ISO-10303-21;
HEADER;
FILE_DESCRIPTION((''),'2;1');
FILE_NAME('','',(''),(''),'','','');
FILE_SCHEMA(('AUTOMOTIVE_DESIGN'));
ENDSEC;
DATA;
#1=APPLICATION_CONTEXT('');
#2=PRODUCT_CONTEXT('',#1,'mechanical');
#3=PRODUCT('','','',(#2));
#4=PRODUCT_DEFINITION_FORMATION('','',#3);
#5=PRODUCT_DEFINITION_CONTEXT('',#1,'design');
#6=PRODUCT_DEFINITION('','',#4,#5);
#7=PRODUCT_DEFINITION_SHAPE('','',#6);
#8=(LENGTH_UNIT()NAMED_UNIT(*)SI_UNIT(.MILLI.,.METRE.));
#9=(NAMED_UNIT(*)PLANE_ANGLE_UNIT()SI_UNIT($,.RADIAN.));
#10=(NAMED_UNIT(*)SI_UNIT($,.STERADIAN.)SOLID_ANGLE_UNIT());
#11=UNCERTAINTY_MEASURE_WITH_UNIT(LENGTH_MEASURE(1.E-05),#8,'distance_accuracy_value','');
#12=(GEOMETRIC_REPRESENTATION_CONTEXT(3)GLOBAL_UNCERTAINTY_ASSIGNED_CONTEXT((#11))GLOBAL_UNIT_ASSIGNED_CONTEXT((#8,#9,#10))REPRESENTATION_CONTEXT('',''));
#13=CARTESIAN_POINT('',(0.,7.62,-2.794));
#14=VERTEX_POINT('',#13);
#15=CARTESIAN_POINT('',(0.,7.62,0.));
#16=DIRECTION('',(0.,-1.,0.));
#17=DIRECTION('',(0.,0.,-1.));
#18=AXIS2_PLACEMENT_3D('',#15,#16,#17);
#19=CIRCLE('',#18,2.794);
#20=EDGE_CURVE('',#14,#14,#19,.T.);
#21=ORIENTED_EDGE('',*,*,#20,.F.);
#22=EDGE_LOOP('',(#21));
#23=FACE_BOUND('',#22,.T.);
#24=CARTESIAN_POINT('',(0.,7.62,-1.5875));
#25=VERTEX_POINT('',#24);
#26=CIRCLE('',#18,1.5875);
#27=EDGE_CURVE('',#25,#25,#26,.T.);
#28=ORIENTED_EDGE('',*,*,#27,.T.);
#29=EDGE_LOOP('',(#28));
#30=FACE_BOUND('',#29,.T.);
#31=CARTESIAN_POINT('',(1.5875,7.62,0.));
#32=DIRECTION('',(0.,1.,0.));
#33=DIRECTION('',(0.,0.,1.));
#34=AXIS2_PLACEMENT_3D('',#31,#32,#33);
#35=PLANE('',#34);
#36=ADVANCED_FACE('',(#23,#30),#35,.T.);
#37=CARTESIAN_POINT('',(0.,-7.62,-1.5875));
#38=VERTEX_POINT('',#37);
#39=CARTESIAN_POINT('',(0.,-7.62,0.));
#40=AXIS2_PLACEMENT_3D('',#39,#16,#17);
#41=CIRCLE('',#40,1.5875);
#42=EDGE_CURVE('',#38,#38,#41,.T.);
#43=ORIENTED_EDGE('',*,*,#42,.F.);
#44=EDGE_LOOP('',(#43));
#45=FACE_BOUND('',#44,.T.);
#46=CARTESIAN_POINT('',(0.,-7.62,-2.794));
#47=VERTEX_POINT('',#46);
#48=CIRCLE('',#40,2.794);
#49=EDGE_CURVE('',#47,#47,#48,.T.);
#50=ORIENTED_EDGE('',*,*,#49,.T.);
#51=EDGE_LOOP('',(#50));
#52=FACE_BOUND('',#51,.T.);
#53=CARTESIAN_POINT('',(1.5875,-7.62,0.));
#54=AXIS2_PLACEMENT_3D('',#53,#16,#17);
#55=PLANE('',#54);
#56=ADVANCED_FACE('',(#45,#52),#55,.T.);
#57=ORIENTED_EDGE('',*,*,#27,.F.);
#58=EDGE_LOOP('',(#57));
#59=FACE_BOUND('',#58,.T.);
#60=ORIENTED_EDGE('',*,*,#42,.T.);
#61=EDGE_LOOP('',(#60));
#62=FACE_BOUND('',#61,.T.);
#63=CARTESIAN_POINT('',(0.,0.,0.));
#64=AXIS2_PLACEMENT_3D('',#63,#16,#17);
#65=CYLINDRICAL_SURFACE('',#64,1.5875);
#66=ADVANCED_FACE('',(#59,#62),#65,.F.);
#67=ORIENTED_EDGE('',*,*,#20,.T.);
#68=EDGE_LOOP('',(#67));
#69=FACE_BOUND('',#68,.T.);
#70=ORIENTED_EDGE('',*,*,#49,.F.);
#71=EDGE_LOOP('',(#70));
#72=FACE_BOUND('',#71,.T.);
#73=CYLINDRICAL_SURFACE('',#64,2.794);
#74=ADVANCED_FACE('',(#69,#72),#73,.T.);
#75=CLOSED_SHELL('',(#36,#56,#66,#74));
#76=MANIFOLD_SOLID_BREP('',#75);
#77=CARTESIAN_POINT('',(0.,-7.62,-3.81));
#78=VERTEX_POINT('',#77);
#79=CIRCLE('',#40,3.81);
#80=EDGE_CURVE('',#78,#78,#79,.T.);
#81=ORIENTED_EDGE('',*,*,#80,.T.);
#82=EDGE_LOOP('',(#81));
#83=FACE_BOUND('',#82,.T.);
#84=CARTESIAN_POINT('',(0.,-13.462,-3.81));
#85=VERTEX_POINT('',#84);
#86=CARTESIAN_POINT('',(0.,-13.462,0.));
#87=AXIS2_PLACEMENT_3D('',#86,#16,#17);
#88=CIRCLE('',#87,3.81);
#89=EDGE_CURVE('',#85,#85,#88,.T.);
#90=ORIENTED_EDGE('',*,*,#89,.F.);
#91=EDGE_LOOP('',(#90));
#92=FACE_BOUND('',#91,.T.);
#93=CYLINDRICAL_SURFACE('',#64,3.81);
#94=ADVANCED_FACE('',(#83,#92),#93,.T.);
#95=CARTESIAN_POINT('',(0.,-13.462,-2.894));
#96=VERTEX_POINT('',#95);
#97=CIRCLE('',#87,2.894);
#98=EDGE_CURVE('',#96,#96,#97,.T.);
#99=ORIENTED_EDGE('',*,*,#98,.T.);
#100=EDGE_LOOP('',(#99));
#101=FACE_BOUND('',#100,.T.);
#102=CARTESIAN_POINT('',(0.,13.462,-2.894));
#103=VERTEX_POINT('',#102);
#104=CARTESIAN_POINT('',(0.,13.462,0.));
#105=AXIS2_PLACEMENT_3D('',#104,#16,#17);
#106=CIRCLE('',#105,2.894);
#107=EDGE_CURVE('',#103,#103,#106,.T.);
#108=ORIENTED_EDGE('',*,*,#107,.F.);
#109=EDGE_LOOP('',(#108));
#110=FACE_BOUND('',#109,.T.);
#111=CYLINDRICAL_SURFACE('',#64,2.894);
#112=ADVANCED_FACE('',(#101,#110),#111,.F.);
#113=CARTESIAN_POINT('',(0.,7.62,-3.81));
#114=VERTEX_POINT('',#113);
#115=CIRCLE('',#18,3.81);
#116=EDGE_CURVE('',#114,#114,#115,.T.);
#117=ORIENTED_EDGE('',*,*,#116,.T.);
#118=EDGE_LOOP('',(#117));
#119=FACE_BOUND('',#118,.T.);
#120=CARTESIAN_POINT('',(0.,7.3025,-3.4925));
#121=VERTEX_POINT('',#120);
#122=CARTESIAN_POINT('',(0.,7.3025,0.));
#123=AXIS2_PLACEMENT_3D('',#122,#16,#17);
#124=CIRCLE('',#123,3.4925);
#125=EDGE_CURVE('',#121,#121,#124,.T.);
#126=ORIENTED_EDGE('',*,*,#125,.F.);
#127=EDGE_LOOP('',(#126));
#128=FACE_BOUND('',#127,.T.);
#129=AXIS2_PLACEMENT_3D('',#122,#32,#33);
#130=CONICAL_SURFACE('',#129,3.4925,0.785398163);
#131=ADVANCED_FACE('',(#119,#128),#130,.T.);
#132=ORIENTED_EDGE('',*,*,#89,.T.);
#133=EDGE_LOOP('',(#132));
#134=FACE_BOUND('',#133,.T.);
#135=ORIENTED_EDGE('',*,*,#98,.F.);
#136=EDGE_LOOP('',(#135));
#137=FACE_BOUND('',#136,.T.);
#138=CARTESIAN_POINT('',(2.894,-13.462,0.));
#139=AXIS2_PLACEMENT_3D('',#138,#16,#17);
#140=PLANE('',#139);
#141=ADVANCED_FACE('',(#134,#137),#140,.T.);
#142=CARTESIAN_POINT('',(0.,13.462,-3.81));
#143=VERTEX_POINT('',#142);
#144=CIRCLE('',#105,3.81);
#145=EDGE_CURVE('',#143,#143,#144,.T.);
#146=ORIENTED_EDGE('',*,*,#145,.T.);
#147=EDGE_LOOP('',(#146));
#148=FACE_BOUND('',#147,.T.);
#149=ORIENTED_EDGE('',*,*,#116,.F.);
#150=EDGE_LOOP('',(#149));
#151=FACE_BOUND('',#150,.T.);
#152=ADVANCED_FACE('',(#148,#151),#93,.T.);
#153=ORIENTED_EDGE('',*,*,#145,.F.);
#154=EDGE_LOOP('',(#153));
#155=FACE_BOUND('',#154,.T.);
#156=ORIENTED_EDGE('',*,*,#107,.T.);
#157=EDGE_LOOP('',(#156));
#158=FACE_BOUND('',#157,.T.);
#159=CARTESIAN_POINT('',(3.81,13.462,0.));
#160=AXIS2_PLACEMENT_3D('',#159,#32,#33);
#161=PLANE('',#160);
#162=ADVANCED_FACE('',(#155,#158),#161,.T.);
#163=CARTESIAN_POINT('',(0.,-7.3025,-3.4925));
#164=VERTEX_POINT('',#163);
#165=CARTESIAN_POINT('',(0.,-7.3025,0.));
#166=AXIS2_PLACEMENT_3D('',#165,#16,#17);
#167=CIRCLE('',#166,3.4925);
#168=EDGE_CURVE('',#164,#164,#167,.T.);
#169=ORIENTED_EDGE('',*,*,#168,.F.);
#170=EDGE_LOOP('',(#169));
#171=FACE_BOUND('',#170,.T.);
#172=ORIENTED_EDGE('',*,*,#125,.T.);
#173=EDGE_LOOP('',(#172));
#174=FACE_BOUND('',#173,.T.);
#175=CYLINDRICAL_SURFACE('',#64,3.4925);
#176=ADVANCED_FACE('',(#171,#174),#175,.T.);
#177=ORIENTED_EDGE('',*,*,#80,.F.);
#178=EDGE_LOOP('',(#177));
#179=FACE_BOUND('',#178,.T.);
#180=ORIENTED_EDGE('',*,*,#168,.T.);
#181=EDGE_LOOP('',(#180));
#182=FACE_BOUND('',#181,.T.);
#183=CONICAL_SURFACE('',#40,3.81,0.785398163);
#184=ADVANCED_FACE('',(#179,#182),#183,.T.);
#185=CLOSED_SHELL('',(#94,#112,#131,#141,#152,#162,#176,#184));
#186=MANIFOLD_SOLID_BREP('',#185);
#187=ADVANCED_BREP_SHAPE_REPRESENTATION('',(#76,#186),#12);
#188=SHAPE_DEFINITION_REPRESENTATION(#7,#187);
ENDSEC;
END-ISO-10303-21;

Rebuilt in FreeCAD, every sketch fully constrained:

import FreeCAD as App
import Part
import Sketcher
from FreeCAD import Vector
Q = App.Units.Quantity

doc = App.newDocument("Part")
body = doc.addObject("PartDesign::Body", "Body")
body.AllowCompound = True

sketch1 = doc.addObject("Sketcher::SketchObject", "Sketch")
body.addObject(sketch1)
sketch1.AttachmentSupport = (doc.XY_Plane, [""])
sketch1.MapMode = "FlatFace"
sketch1.addGeometry([
    Part.LineSegment(Vector(2.89, 13.46, 0), Vector(2.89, -13.46, 0)),
    Part.LineSegment(Vector(2.89, -13.46, 0), Vector(3.81, -13.46, 0)),
    Part.LineSegment(Vector(3.81, -13.46, 0), Vector(3.81, -7.62, 0)),
    Part.LineSegment(Vector(3.81, -7.62, 0), Vector(3.49, -7.3, 0)),
    Part.LineSegment(Vector(3.49, -7.3, 0), Vector(3.49, 7.3, 0)),
    Part.LineSegment(Vector(3.49, 7.3, 0), Vector(3.81, 7.62, 0)),
    Part.LineSegment(Vector(3.81, 7.62, 0), Vector(3.81, 13.46, 0)),
    Part.LineSegment(Vector(3.81, 13.46, 0), Vector(2.89, 13.46, 0)),
    Part.LineSegment(Vector(1.59, 7.62, 0), Vector(1.59, -7.62, 0)),
    Part.LineSegment(Vector(1.59, -7.62, 0), Vector(2.79, -7.62, 0)),
    Part.LineSegment(Vector(2.79, -7.62, 0), Vector(2.79, 7.62, 0)),
    Part.LineSegment(Vector(2.79, 7.62, 0), Vector(1.59, 7.62, 0)),
], False)
sketch1.addConstraint([
    Sketcher.Constraint("Coincident", 0, 2, 1, 1),
    Sketcher.Constraint("Coincident", 1, 2, 2, 1),
    Sketcher.Constraint("Coincident", 2, 2, 3, 1),
    Sketcher.Constraint("Coincident", 3, 2, 4, 1),
    Sketcher.Constraint("Coincident", 4, 2, 5, 1),
    Sketcher.Constraint("Coincident", 5, 2, 6, 1),
    Sketcher.Constraint("Coincident", 6, 2, 7, 1),
    Sketcher.Constraint("Coincident", 7, 2, 0, 1),
    Sketcher.Constraint("Coincident", 8, 2, 9, 1),
    Sketcher.Constraint("Coincident", 9, 2, 10, 1),
    Sketcher.Constraint("Coincident", 10, 2, 11, 1),
    Sketcher.Constraint("Coincident", 11, 2, 8, 1),
    Sketcher.Constraint("Vertical", 0),
    Sketcher.Constraint("Horizontal", 1),
    Sketcher.Constraint("Vertical", 2),
    Sketcher.Constraint("Vertical", 4),
    Sketcher.Constraint("Vertical", 6),
    Sketcher.Constraint("Horizontal", 7),
    Sketcher.Constraint("Vertical", 8),
    Sketcher.Constraint("Horizontal", 9),
    Sketcher.Constraint("Vertical", 10),
    Sketcher.Constraint("Horizontal", 11),
    Sketcher.Constraint("Symmetric", 2, 2, 5, 2, -1),
    Sketcher.Constraint("Perpendicular", 3, 5),
    Sketcher.Constraint("Horizontal", 2, 2, 8, 2),
    Sketcher.Constraint("Horizontal", 5, 2, 10, 2),
    Sketcher.Constraint("Equal", 2, 6),
    Sketcher.Constraint("Equal", 3, 5),
    Sketcher.Constraint("DistanceY", 8, 2, 8, 1, Q("0.6 in")),
    Sketcher.Constraint("DistanceY", 0, 2, 0, 1, Q("1.06 in")),
    Sketcher.Constraint("DistanceY", 4, 1, 4, 2, Q("0.575 in")),
    Sketcher.Constraint("DistanceX", -1, 1, 1, 2, Q("0.15 in")),
    Sketcher.Constraint("DistanceX", -1, 1, 9, 2, Q("0.11 in")),
    Sketcher.Constraint("DistanceX", 9, 1, 9, 2, Q("0.0475 in")),
    Sketcher.Constraint("DistanceX", 1, 1, 1, 2, 0.916),
])
revolution = doc.addObject("PartDesign::Revolution", "Revolution")
body.addObject(revolution)
revolution.Profile = sketch1
revolution.ReferenceAxis = (sketch1, ["V_Axis"])
revolution.Angle = 360

doc.recompute()
